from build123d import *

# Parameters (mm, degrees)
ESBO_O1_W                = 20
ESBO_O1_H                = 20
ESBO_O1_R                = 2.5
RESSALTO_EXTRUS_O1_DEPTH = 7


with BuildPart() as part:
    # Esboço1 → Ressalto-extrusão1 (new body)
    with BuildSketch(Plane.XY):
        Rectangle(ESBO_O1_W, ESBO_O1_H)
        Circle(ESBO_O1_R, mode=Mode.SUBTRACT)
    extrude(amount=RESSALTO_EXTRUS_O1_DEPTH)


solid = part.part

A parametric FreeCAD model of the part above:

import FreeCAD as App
import Part
import Sketcher
Q = App.Units.Quantity


def add_polygon(sketch, points):
    """Adds a closed chain of lines whose ends are joined by coincident constraints."""
    first, n = sketch.GeometryCount, len(points)
    for a, b in zip(points, points[1:] + points[:1]):
        sketch.addGeometry(Part.LineSegment(App.Vector(*a, 0), App.Vector(*b, 0)), False)
    for i in range(n):
        sketch.addConstraint(Sketcher.Constraint("Coincident", first + i, 2, first + (i + 1) % n, 1))

doc = App.newDocument("Part")
params = doc.addObject("Spreadsheet::Sheet", "Params")
for row, (alias, value) in enumerate([
    ("sketch1_diameter", "5 mm"),
    ("sketch1_width", "20 mm"),
    ("pad1_length", "7 mm"),
], start=1):
    params.set(f"A{row}", alias)
    params.set(f"B{row}", "=" + value)
    params.setAlias(f"B{row}", alias)

body = doc.addObject("PartDesign::Body", "Body")

sketch1 = body.newObject("Sketcher::SketchObject", "Sketch")
sketch1.AttachmentSupport = (doc.getObject("XY_Plane"), [""])
sketch1.MapMode = "FlatFace"
add_polygon(sketch1, [(-10, 10), (-10, -10), (10, -10), (10, 10)])
sketch1.addGeometry(Part.Circle(App.Vector(0, 0, 0), App.Vector(0, 0, 1), 2.5), False)
sketch1.addConstraint(Sketcher.Constraint("Vertical", 0))
sketch1.addConstraint(Sketcher.Constraint("Horizontal", 1))
sketch1.addConstraint(Sketcher.Constraint("Vertical", 2))
sketch1.addConstraint(Sketcher.Constraint("Horizontal", 3))
sketch1.addConstraint(Sketcher.Constraint("Coincident", 4, 3, -1, 1))
sketch1.addConstraint(Sketcher.Constraint("Symmetric", 0, 2, 2, 2, -1, 1))
sketch1.addConstraint(Sketcher.Constraint("Equal", 3, 0))
sketch1.addConstraint(Sketcher.Constraint("Diameter", 4, Q("5 mm")))
sketch1.addConstraint(Sketcher.Constraint("DistanceX", 1, 1, 1, 2, Q("20 mm")))
sketch1.setExpression("Constraints[11]", "Params.sketch1_diameter")
sketch1.setExpression("Constraints[12]", "Params.sketch1_width")
pad1 = body.newObject("PartDesign::Pad", "Pad")
pad1.Profile = sketch1
pad1.setExpression("Length", "Params.pad1_length")

doc.recompute()
